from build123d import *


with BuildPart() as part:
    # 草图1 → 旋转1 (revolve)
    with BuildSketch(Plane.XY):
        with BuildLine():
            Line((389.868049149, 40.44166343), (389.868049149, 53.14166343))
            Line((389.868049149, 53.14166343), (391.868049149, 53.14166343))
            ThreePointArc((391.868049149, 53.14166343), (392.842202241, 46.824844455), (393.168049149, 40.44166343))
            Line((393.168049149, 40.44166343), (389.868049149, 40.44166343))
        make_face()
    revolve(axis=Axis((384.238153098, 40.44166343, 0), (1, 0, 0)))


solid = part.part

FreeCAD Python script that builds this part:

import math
import FreeCAD as App
import Part
import Sketcher

V = App.Vector

doc = App.newDocument("Part")
body = doc.addObject("PartDesign::Body", "Body")

sketch1 = body.newObject("Sketcher::SketchObject", "Sketch")
sketch1.AttachmentSupport = (doc.getObject("XY_Plane"), [""])
sketch1.MapMode = "FlatFace"
sketch1.addGeometry(Part.LineSegment(V(389.9, 53.1, 0), V(389.9, 40.4, 0)), False)
sketch1.addGeometry(Part.LineSegment(V(389.9, 40.4, 0), V(393.2, 40.4, 0)), False)
sketch1.addGeometry(Part.ArcOfCircle(Part.Circle(V(330.5, 40.4, 0), V(0, 0, 1), 62.7), math.radians(0), math.radians(11.69)), False)
sketch1.addGeometry(Part.LineSegment(V(391.9, 53.1, 0), V(389.9, 53.1, 0)), False)
sketch1.addGeometry(Part.LineSegment(V(330.5, 40.4, 0), V(393.2, 40.4, 0)), True)
sketch1.addConstraint(Sketcher.Constraint("Coincident", 0, 2, 1, 1))
sketch1.addConstraint(Sketcher.Constraint("Coincident", 1, 2, 2, 1))
sketch1.addConstraint(Sketcher.Constraint("Coincident", 2, 2, 3, 1))
sketch1.addConstraint(Sketcher.Constraint("Coincident", 3, 2, 0, 1))
sketch1.addConstraint(Sketcher.Constraint("Vertical", 0))
sketch1.addConstraint(Sketcher.Constraint("Horizontal", 1))
sketch1.addConstraint(Sketcher.Constraint("Horizontal", 3))
sketch1.addConstraint(Sketcher.Constraint("Horizontal", 4))
sketch1.addConstraint(Sketcher.Constraint("Coincident", 4, 1, 2, 3))
sketch1.addConstraint(Sketcher.Constraint("Coincident", 4, 2, 1, 2))
sketch1.addConstraint(Sketcher.Constraint("DistanceX", 3, 2, 3, 1, 2.0))
sketch1.addConstraint(Sketcher.Constraint("DistanceX", 1, 1, 1, 2, 3.3))
sketch1.addConstraint(Sketcher.Constraint("DistanceY", 0, 2, 0, 1, 12.7))
sketch1.addConstraint(Sketcher.Constraint("DistanceX", -1, 1, 0, 2, 389.868049))
sketch1.addConstraint(Sketcher.Constraint("DistanceY", -1, 1, 2, 3, 40.441663))
revolution = body.newObject("PartDesign::Revolution", "Revolution")
revolution.Profile = sketch1
revolution.ReferenceAxis = (sketch1, ["Axis0"])
revolution.Angle = 360

doc.recompute()
